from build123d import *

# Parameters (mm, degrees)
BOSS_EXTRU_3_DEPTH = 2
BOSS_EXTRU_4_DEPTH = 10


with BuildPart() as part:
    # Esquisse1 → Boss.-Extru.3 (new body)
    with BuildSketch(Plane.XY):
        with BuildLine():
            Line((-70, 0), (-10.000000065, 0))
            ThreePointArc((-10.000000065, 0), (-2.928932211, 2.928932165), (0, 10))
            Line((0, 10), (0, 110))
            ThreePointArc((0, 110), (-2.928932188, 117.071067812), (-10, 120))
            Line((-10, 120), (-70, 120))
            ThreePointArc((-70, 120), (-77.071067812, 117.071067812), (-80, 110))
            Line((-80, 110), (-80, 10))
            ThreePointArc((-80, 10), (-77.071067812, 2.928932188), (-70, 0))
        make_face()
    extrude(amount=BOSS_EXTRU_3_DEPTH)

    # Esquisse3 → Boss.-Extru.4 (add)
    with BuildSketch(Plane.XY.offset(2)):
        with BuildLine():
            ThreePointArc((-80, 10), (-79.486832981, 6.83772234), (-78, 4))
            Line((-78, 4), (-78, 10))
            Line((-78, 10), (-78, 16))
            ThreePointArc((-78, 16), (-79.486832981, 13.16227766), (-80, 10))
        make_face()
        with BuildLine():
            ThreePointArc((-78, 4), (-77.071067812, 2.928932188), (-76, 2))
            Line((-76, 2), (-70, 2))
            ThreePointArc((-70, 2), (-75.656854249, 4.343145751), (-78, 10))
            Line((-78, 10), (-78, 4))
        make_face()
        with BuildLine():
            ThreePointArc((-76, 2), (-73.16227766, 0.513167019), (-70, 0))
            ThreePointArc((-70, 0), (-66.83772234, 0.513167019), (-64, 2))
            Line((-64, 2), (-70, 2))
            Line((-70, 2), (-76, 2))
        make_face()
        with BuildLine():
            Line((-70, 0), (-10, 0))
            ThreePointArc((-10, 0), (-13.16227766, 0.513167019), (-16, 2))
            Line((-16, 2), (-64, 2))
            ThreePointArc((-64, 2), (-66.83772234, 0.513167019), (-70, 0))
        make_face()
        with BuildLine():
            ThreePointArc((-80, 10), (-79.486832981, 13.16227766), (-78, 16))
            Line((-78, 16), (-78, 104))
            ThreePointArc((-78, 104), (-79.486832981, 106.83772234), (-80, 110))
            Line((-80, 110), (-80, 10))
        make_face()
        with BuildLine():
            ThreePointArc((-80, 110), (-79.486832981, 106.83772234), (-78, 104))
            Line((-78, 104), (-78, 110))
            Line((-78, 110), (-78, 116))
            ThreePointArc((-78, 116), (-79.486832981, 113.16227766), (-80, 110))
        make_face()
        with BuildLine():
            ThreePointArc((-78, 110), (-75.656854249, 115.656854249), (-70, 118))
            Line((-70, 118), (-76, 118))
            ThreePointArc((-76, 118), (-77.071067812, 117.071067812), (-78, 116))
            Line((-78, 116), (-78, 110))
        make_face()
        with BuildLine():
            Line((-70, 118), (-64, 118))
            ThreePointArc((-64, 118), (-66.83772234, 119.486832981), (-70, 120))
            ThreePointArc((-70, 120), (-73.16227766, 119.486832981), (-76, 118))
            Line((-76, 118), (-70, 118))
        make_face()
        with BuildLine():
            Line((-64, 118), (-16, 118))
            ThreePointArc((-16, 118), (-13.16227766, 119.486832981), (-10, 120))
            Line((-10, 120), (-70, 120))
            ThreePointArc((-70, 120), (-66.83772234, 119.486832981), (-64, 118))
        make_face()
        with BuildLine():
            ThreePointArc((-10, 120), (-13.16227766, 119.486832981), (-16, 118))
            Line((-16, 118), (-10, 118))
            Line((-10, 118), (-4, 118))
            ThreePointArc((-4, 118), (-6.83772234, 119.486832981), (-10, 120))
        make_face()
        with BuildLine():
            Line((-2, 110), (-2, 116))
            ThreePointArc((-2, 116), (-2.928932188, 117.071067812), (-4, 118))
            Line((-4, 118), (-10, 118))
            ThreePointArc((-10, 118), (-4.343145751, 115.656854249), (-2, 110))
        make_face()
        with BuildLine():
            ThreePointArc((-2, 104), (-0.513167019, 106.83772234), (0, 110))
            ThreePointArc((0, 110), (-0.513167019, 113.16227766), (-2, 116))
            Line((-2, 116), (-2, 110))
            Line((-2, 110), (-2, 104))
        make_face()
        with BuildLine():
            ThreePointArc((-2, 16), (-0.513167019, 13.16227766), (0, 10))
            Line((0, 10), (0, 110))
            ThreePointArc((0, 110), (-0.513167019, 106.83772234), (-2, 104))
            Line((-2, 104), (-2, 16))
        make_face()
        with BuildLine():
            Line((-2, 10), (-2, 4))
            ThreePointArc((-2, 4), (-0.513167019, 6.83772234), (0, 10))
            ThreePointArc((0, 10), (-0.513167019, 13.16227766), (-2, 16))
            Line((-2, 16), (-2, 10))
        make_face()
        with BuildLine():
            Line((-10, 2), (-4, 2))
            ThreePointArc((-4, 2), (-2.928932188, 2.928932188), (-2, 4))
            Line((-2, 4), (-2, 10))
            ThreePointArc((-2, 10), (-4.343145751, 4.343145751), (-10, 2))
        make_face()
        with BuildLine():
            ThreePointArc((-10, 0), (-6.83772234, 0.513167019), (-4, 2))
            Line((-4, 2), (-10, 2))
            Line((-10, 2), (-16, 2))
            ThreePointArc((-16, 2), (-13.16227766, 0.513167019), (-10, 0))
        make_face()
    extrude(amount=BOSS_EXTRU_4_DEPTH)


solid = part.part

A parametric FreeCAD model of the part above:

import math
import FreeCAD as App
import Part
import Sketcher
Q = App.Units.Quantity

doc = App.newDocument("Part")
body = doc.addObject("PartDesign::Body", "Body")

# Sketch on XY plane
sketch1 = doc.addObject("Sketcher::SketchObject", "Sketch")
body.addObject(sketch1)
sketch1.AttachmentSupport = (doc.XY_Plane, [""])
sketch1.MapMode = "FlatFace"
sketch1.addGeometry(Part.LineSegment(App.Vector(-70, 0, 0), App.Vector(-10, 0, 0)), False)
sketch1.addGeometry(Part.ArcOfCircle(Part.Circle(App.Vector(-10, 10, 0), App.Vector(0, 0, 1), 10), math.radians(-90), math.radians(0)), False)
sketch1.addGeometry(Part.LineSegment(App.Vector(0, 10, 0), App.Vector(0, 110, 0)), False)
sketch1.addGeometry(Part.ArcOfCircle(Part.Circle(App.Vector(-10, 110, 0), App.Vector(0, 0, 1), 10), math.radians(0), math.radians(90)), False)
sketch1.addGeometry(Part.LineSegment(App.Vector(-10, 120, 0), App.Vector(-70, 120, 0)), False)
sketch1.addGeometry(Part.ArcOfCircle(Part.Circle(App.Vector(-70, 110, 0), App.Vector(0, 0, 1), 10), math.radians(90), math.radians(180)), False)
sketch1.addGeometry(Part.LineSegment(App.Vector(-80, 110, 0), App.Vector(-80, 10, 0)), False)
sketch1.addGeometry(Part.ArcOfCircle(Part.Circle(App.Vector(-70, 10, 0), App.Vector(0, 0, 1), 10), math.radians(180), math.radians(270)), False)
sketch1.addConstraint(Sketcher.Constraint("Tangent", 0, 2, 1, 1))
sketch1.addConstraint(Sketcher.Constraint("Tangent", 1, 2, 2, 1))
sketch1.addConstraint(Sketcher.Constraint("Tangent", 2, 2, 3, 1))
sketch1.addConstraint(Sketcher.Constraint("Tangent", 3, 2, 4, 1))
sketch1.addConstraint(Sketcher.Constraint("Tangent", 4, 2, 5, 1))
sketch1.addConstraint(Sketcher.Constraint("Tangent", 5, 2, 6, 1))
sketch1.addConstraint(Sketcher.Constraint("Tangent", 6, 2, 7, 1))
sketch1.addConstraint(Sketcher.Constraint("Tangent", 7, 2, 0, 1))
sketch1.addConstraint(Sketcher.Constraint("Horizontal", 0))
sketch1.addConstraint(Sketcher.Constraint("Vertical", 2))
sketch1.addConstraint(Sketcher.Constraint("Horizontal", 4))
sketch1.addConstraint(Sketcher.Constraint("Vertical", 6))
sketch1.addConstraint(Sketcher.Constraint("Equal", 1, 3))
sketch1.addConstraint(Sketcher.Constraint("Equal", 3, 5))
sketch1.addConstraint(Sketcher.Constraint("Equal", 5, 7))
sketch1.addConstraint(Sketcher.Constraint("PointOnObject", 0, 2, -1))
sketch1.addConstraint(Sketcher.Constraint("PointOnObject", 1, 2, -2))
sketch1.addConstraint(Sketcher.Constraint("Radius", 1, Q("10 mm")))
sketch1.addConstraint(Sketcher.Constraint("DistanceX", 0, 1, 0, 2, Q("60 mm")))
sketch1.addConstraint(Sketcher.Constraint("DistanceY", 2, 1, 2, 2, Q("100 mm")))
pad1 = doc.addObject("PartDesign::Pad", "Pad")
body.addObject(pad1)
pad1.Profile = sketch1
pad1.Length = 2

# Sketch on XY plane
sketch2 = doc.addObject("Sketcher::SketchObject", "Sketch001")
body.addObject(sketch2)
sketch2.AttachmentSupport = (doc.XY_Plane, [""])
sketch2.MapMode = "FlatFace"
sketch2.AttachmentOffset = App.Placement(App.Vector(0, 0, 2), App.Rotation())
sketch2.addGeometry(Part.ArcOfCircle(Part.Circle(App.Vector(-70, 10, 0), App.Vector(0, 0, 1), 10), math.radians(180), math.radians(216.869898)), False)
sketch2.addGeometry(Part.ArcOfCircle(Part.Circle(App.Vector(-70, 10, 0), App.Vector(0, 0, 1), 10), math.radians(-143.130102), math.radians(-126.869898)), False)
sketch2.addGeometry(Part.ArcOfCircle(Part.Circle(App.Vector(-70, 10, 0), App.Vector(0, 0, 1), 10), math.radians(-126.869898), math.radians(-90)), False)
sketch2.addGeometry(Part.LineSegment(App.Vector(-70, 0, 0), App.Vector(-10, 0, 0)), False)
sketch2.addGeometry(Part.ArcOfCircle(Part.Circle(App.Vector(-10, 10, 0), App.Vector(0, 0, 1), 10), math.radians(-90), math.radians(-53.130102)), False)
sketch2.addGeometry(Part.ArcOfCircle(Part.Circle(App.Vector(-10, 10, 0), App.Vector(0, 0, 1), 10), math.radians(-53.130102), math.radians(-36.869898)), False)
sketch2.addGeometry(Part.ArcOfCircle(Part.Circle(App.Vector(-10, 10, 0), App.Vector(0, 0, 1), 10), math.radians(-36.869898), math.radians(0)), False)
sketch2.addGeometry(Part.LineSegment(App.Vector(0, 10, 0), App.Vector(0, 110, 0)), False)
sketch2.addGeometry(Part.ArcOfCircle(Part.Circle(App.Vector(-10, 110, 0), App.Vector(0, 0, 1), 10), math.radians(0), math.radians(36.869898)), False)
sketch2.addGeometry(Part.ArcOfCircle(Part.Circle(App.Vector(-10, 110, 0), App.Vector(0, 0, 1), 10), math.radians(36.869898), math.radians(53.130102)), False)
sketch2.addGeometry(Part.ArcOfCircle(Part.Circle(App.Vector(-10, 110, 0), App.Vector(0, 0, 1), 10), math.radians(53.130102), math.radians(90)), False)
sketch2.addGeometry(Part.LineSegment(App.Vector(-10, 120, 0), App.Vector(-70, 120, 0)), False)
sketch2.addGeometry(Part.ArcOfCircle(Part.Circle(App.Vector(-70, 110, 0), App.Vector(0, 0, 1), 10), math.radians(90), math.radians(126.869898)), False)
sketch2.addGeometry(Part.ArcOfCircle(Part.Circle(App.Vector(-70, 110, 0), App.Vector(0, 0, 1), 10), math.radians(126.869898), math.radians(143.130102)), False)
sketch2.addGeometry(Part.ArcOfCircle(Part.Circle(App.Vector(-70, 110, 0), App.Vector(0, 0, 1), 10), math.radians(143.130102), math.radians(180)), False)
sketch2.addGeometry(Part.LineSegment(App.Vector(-80, 110, 0), App.Vector(-80, 10, 0)), False)
sketch2.addGeometry(Part.ArcOfCircle(Part.Circle(App.Vector(-70, 10, 0), App.Vector(0, 0, 1), 8), math.radians(-180), math.radians(-90)), False)
sketch2.addGeometry(Part.LineSegment(App.Vector(-78, 10, 0), App.Vector(-78, 110, 0)), False)
sketch2.addGeometry(Part.ArcOfCircle(Part.Circle(App.Vector(-70, 110, 0), App.Vector(0, 0, 1), 8), math.radians(90), math.radians(180)), False)
sketch2.addGeometry(Part.LineSegment(App.Vector(-70, 118, 0), App.Vector(-10, 118, 0)), False)
sketch2.addGeometry(Part.ArcOfCircle(Part.Circle(App.Vector(-10, 110, 0), App.Vector(0, 0, 1), 8), math.radians(0), math.radians(90)), False)
sketch2.addGeometry(Part.LineSegment(App.Vector(-2, 110, 0), App.Vector(-2, 10, 0)), False)
sketch2.addGeometry(Part.ArcOfCircle(Part.Circle(App.Vector(-10, 10, 0), App.Vector(0, 0, 1), 8), math.radians(-90), math.radians(0)), False)
sketch2.addGeometry(Part.LineSegment(App.Vector(-10, 2, 0), App.Vector(-70, 2, 0)), False)
sketch2.addConstraint(Sketcher.Constraint("Tangent", 0, 2, 1, 1))
sketch2.addConstraint(Sketcher.Constraint("Tangent", 1, 2, 2, 1))
sketch2.addConstraint(Sketcher.Constraint("Tangent", 2, 2, 3, 1))
sketch2.addConstraint(Sketcher.Constraint("Tangent", 3, 2, 4, 1))
sketch2.addConstraint(Sketcher.Constraint("Tangent", 4, 2, 5, 1))
sketch2.addConstraint(Sketcher.Constraint("Tangent", 5, 2, 6, 1))
sketch2.addConstraint(Sketcher.Constraint("Tangent", 6, 2, 7, 1))
sketch2.addConstraint(Sketcher.Constraint("Tangent", 7, 2, 8, 1))
sketch2.addConstraint(Sketcher.Constraint("Tangent", 8, 2, 9, 1))
sketch2.addConstraint(Sketcher.Constraint("Tangent", 9, 2, 10, 1))
sketch2.addConstraint(Sketcher.Constraint("Tangent", 10, 2, 11, 1))
sketch2.addConstraint(Sketcher.Constraint("Tangent", 11, 2, 12, 1))
sketch2.addConstraint(Sketcher.Constraint("Tangent", 12, 2, 13, 1))
sketch2.addConstraint(Sketcher.Constraint("Tangent", 13, 2, 14, 1))
sketch2.addConstraint(Sketcher.Constraint("Tangent", 14, 2, 15, 1))
sketch2.addConstraint(Sketcher.Constraint("Tangent", 15, 2, 0, 1))
sketch2.addConstraint(Sketcher.Constraint("Tangent", 16, 1, 17, 1))
sketch2.addConstraint(Sketcher.Constraint("Tangent", 17, 2, 18, 2))
sketch2.addConstraint(Sketcher.Constraint("Tangent", 18, 1, 19, 1))
sketch2.addConstraint(Sketcher.Constraint("Tangent", 19, 2, 20, 2))
sketch2.addConstraint(Sketcher.Constraint("Tangent", 20, 1, 21, 1))
sketch2.addConstraint(Sketcher.Constraint("Tangent", 21, 2, 22, 2))
sketch2.addConstraint(Sketcher.Constraint("Tangent", 22, 1, 23, 1))
sketch2.addConstraint(Sketcher.Constraint("Tangent", 23, 2, 16, 2))
sketch2.addConstraint(Sketcher.Constraint("Horizontal", 3))
sketch2.addConstraint(Sketcher.Constraint("Vertical", 7))
sketch2.addConstraint(Sketcher.Constraint("Horizontal", 11))
sketch2.addConstraint(Sketcher.Constraint("Vertical", 15))
sketch2.addConstraint(Sketcher.Constraint("Vertical", 17))
sketch2.addConstraint(Sketcher.Constraint("Horizontal", 19))
sketch2.addConstraint(Sketcher.Constraint("Vertical", 21))
sketch2.addConstraint(Sketcher.Constraint("Horizontal", 23))
sketch2.addConstraint(Sketcher.Constraint("Coincident", 2, 3, 0, 3))
sketch2.addConstraint(Sketcher.Constraint("Coincident", 6, 3, 4, 3))
sketch2.addConstraint(Sketcher.Constraint("Coincident", 10, 3, 8, 3))
sketch2.addConstraint(Sketcher.Constraint("Coincident", 14, 3, 12, 3))
sketch2.addConstraint(Sketcher.Constraint("Coincident", 16, 3, 0, 3))
sketch2.addConstraint(Sketcher.Constraint("Coincident", 18, 3, 12, 3))
sketch2.addConstraint(Sketcher.Constraint("Coincident", 20, 3, 8, 3))
sketch2.addConstraint(Sketcher.Constraint("Equal", 2, 4))
sketch2.addConstraint(Sketcher.Constraint("Equal", 6, 8))
sketch2.addConstraint(Sketcher.Constraint("Equal", 10, 12))
sketch2.addConstraint(Sketcher.Constraint("Equal", 20, 22))
sketch2.addConstraint(Sketcher.Constraint("PointOnObject", 2, 2, -1))
sketch2.addConstraint(Sketcher.Constraint("PointOnObject", 6, 2, -2))
sketch2.addConstraint(Sketcher.Constraint("Horizontal", 1, 2, 4, 2))
sketch2.addConstraint(Sketcher.Constraint("Horizontal", 0, 2, 5, 2))
sketch2.addConstraint(Sketcher.Constraint("Horizontal", 9, 2, 12, 2))
sketch2.addConstraint(Sketcher.Constraint("Horizontal", 8, 2, 13, 2))
sketch2.addConstraint(Sketcher.Constraint("Horizontal", 12, 2, 18, 1))
sketch2.addConstraint(Sketcher.Constraint("Horizontal", 4, 2, 22, 1))
sketch2.addConstraint(Sketcher.Constraint("Vertical", 5, 2, 8, 2))
sketch2.addConstraint(Sketcher.Constraint("Vertical", 13, 2, 16, 1))
sketch2.addConstraint(Sketcher.Constraint("Radius", 0, Q("10 mm")))
sketch2.addConstraint(Sketcher.Constraint("Radius", 16, Q("8 mm")))
sketch2.addConstraint(Sketcher.Constraint("DistanceX", 3, 1, 3, 2, Q("60 mm")))
sketch2.addConstraint(Sketcher.Constraint("DistanceY", 7, 1, 7, 2, Q("100 mm")))
pad2 = doc.addObject("PartDesign::Pad", "Pad001")
body.addObject(pad2)
pad2.Profile = sketch2
pad2.Length = 10

doc.recompute()
